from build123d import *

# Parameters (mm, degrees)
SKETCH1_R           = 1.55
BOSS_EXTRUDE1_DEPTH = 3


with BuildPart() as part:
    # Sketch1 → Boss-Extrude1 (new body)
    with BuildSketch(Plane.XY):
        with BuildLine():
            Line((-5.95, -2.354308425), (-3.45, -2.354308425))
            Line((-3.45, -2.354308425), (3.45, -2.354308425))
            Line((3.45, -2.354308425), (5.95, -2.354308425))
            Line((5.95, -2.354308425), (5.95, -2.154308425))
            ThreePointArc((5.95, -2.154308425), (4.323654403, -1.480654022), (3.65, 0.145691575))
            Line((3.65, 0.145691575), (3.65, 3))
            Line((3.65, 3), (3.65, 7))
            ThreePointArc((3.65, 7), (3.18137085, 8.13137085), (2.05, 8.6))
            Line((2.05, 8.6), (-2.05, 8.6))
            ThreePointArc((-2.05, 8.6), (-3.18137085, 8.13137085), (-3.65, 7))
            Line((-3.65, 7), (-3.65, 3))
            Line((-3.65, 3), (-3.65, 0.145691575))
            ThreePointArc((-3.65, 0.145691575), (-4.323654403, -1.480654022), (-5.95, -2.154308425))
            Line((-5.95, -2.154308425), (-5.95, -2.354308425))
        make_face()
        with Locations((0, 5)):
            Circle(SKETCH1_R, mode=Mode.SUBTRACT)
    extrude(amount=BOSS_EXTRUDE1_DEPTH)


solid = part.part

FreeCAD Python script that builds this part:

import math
import FreeCAD as App
import Part
import Sketcher

V = App.Vector
Q = App.Units.Quantity

doc = App.newDocument("Part")
body = doc.addObject("PartDesign::Body", "Body")

sketch1 = body.newObject("Sketcher::SketchObject", "Sketch")
sketch1.AttachmentSupport = (doc.getObject("XY_Plane"), [""])
sketch1.MapMode = "FlatFace"
sketch1.addGeometry([
    Part.LineSegment(V(-5.95, -2.35, 0), V(5.95, -2.35, 0)),
    Part.LineSegment(V(5.95, -2.35, 0), V(5.95, -2.15, 0)),
    Part.ArcOfCircle(Part.Circle(V(5.95, 0.15, 0), V(0, 0, 1), 2.3), math.radians(180), math.radians(270)),
    Part.LineSegment(V(3.65, 0.15, 0), V(3.65, 7, 0)),
    Part.ArcOfCircle(Part.Circle(V(2.05, 7, 0), V(0, 0, 1), 1.6), math.radians(0), math.radians(90)),
    Part.LineSegment(V(2.05, 8.6, 0), V(-2.05, 8.6, 0)),
    Part.ArcOfCircle(Part.Circle(V(-2.05, 7, 0), V(0, 0, 1), 1.6), math.radians(90), math.radians(180)),
    Part.LineSegment(V(-3.65, 7, 0), V(-3.65, 0.15, 0)),
    Part.ArcOfCircle(Part.Circle(V(-5.95, 0.15, 0), V(0, 0, 1), 2.3), math.radians(-90), math.radians(0)),
    Part.LineSegment(V(-5.95, -2.15, 0), V(-5.95, -2.35, 0)),
    Part.Circle(V(0, 5, 0), V(0, 0, 1), 1.55),
], False)
sketch1.addConstraint([
    Sketcher.Constraint("Coincident", 0, 2, 1, 1),
    Sketcher.Constraint("Coincident", 1, 2, 2, 2),
    Sketcher.Constraint("Tangent", 2, 1, 3, 1),
    Sketcher.Constraint("Tangent", 3, 2, 4, 1),
    Sketcher.Constraint("Tangent", 4, 2, 5, 1),
    Sketcher.Constraint("Tangent", 5, 2, 6, 1),
    Sketcher.Constraint("Tangent", 6, 2, 7, 1),
    Sketcher.Constraint("Tangent", 7, 2, 8, 2),
    Sketcher.Constraint("Coincident", 8, 1, 9, 1),
    Sketcher.Constraint("Coincident", 9, 2, 0, 1),
    Sketcher.Constraint("Horizontal", 0),
    Sketcher.Constraint("Vertical", 1),
    Sketcher.Constraint("Vertical", 3),
    Sketcher.Constraint("Horizontal", 5),
    Sketcher.Constraint("Vertical", 7),
    Sketcher.Constraint("Vertical", 9),
    Sketcher.Constraint("Equal", 4, 6),
    Sketcher.Constraint("Equal", 2, 8),
    Sketcher.Constraint("Symmetric", 2, 3, 8, 3, -2),
    Sketcher.Constraint("PointOnObject", 10, 3, -2),
    Sketcher.Constraint("Vertical", 2, 3, 0, 2),
    Sketcher.Constraint("Diameter", 10, Q("3.1 mm")),
    Sketcher.Constraint("Radius", 2, Q("2.3 mm")),
    Sketcher.Constraint("Radius", 4, Q("1.6 mm")),
    Sketcher.Constraint("DistanceX", 0, 1, 0, 2, Q("11.9 mm")),
    Sketcher.Constraint("DistanceX", 5, 2, 5, 1, Q("4.1 mm")),
    Sketcher.Constraint("DistanceY", 1, 1, 1, 2, Q("0.2 mm")),
    Sketcher.Constraint("DistanceY", -1, 1, 4, 3, Q("7 mm")),
    Sketcher.Constraint("DistanceY", -1, 1, 10, 3, Q("5 mm")),
    Sketcher.Constraint("DistanceY", 3, 1, 3, 2, Q("6.854308 mm")),
])
pad1 = body.newObject("PartDesign::Pad", "Pad")
pad1.Profile = sketch1
pad1.Length = 3

doc.recompute()
